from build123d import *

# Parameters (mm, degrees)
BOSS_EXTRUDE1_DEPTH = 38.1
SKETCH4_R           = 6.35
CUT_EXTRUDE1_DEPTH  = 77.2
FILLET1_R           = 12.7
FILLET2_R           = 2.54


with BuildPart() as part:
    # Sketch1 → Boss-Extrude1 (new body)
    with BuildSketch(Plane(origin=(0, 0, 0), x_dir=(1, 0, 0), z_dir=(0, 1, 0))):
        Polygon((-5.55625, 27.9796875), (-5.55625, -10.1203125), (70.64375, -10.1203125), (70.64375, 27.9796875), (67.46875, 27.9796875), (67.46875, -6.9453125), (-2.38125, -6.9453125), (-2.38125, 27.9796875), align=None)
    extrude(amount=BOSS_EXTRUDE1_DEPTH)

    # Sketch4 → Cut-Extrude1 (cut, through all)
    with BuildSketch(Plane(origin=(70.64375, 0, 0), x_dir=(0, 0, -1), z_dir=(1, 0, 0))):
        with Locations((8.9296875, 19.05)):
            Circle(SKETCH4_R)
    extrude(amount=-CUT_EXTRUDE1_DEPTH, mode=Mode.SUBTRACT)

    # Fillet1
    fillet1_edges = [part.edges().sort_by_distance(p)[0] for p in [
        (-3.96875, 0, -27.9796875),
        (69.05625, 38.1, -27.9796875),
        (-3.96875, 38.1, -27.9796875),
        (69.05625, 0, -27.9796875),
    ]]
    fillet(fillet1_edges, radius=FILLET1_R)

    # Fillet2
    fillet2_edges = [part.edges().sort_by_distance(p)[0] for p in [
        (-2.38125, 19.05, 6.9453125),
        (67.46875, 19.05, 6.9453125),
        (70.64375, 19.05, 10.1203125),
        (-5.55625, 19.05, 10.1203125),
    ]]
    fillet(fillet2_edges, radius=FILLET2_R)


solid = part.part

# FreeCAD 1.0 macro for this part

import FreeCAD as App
import Part
import Sketcher

V = App.Vector
Q = App.Units.Quantity


def edges_at(feature, points):
    """Names of the edges that pass closest to the given points."""
    edges = feature.Shape.Edges
    near = lambda p: min(range(len(edges)), key=lambda i: edges[i].distToShape(Part.Vertex(*p))[0])
    return sorted({f"Edge{near(p) + 1}" for p in points})


def add_polygon(sketch, points):
    """Adds a closed chain of lines whose ends are joined by coincident constraints."""
    first, n = sketch.GeometryCount, len(points)
    for a, b in zip(points, points[1:] + points[:1]):
        sketch.addGeometry(Part.LineSegment(App.Vector(*a, 0), App.Vector(*b, 0)), False)
    for i in range(n):
        sketch.addConstraint(Sketcher.Constraint("Coincident", first + i, 2, first + (i + 1) % n, 1))

doc = App.newDocument("Part")
params = doc.addObject("Spreadsheet::Sheet", "Params")
for row, (alias, value) in enumerate([
    ("sketch1_width", "3 in"),
    ("sketch1_height", "1.5 in"),
    ("sketch1_width2", "2.75 in"),
    ("sketch1_height2", "1.375 in"),
    ("pad1_length", "1.5 in"),
    ("sketch2_diameter", "0.5 in"),
    ("fillet_radius", "0.5 in"),
    ("fillet2_radius", "0.1 in"),
], start=1):
    params.set(f"A{row}", alias)
    params.set(f"B{row}", "=" + value)
    params.setAlias(f"B{row}", alias)

body = doc.addObject("PartDesign::Body", "Body")

sketch1 = body.newObject("Sketcher::SketchObject", "Sketch")
sketch1.AttachmentSupport = (doc.getObject("XZ_Plane"), [""])
sketch1.MapMode = "FlatFace"
add_polygon(sketch1, [(-5.6, -28), (-5.6, 10.1), (70.6, 10.1), (70.6, -28), (67.5, -28), (67.5, 6.9), (-2.4, 6.9), (-2.4, -28)])
sketch1.addConstraint(Sketcher.Constraint("Vertical", 0))
sketch1.addConstraint(Sketcher.Constraint("Horizontal", 1))
sketch1.addConstraint(Sketcher.Constraint("Vertical", 2))
sketch1.addConstraint(Sketcher.Constraint("Horizontal", 3))
sketch1.addConstraint(Sketcher.Constraint("Vertical", 4))
sketch1.addConstraint(Sketcher.Constraint("Horizontal", 5))
sketch1.addConstraint(Sketcher.Constraint("Vertical", 6))
sketch1.addConstraint(Sketcher.Constraint("Horizontal", 7))
sketch1.addConstraint(Sketcher.Constraint("Horizontal", 3, 2, 6, 2))
sketch1.addConstraint(Sketcher.Constraint("Equal", 3, 7))
sketch1.addConstraint(Sketcher.Constraint("DistanceX", 1, 1, 1, 2, Q("3 in")))
sketch1.addConstraint(Sketcher.Constraint("DistanceY", 0, 1, 0, 2, Q("1.5 in")))
sketch1.addConstraint(Sketcher.Constraint("DistanceX", 5, 2, 5, 1, Q("2.75 in")))
sketch1.addConstraint(Sketcher.Constraint("DistanceY", 4, 1, 4, 2, Q("1.375 in")))
sketch1.addConstraint(Sketcher.Constraint("DistanceX", 0, 2, -1, 1, Q("0.21875 in")))
sketch1.addConstraint(Sketcher.Constraint("DistanceY", -1, 1, 0, 2, 10.120313))
sketch1.setExpression("Constraints[18]", "Params.sketch1_width")
sketch1.setExpression("Constraints[19]", "Params.sketch1_height")
sketch1.setExpression("Constraints[20]", "Params.sketch1_width2")
sketch1.setExpression("Constraints[21]", "Params.sketch1_height2")
pad1 = body.newObject("PartDesign::Pad", "Pad")
pad1.Profile = sketch1
pad1.setExpression("Length", "Params.pad1_length")
pad1.Reversed = True

sketch2 = body.newObject("Sketcher::SketchObject", "Sketch001")
sketch2.AttachmentSupport = (doc.getObject("YZ_Plane"), [""])
sketch2.MapMode = "FlatFace"
sketch2.AttachmentOffset = App.Placement(V(0, 0, 2.78125 * 25.4), App.Rotation())
sketch2.addGeometry(Part.Circle(V(19, -9, 0), V(0, 0, 1), 6), False)
sketch2.addConstraint(Sketcher.Constraint("Diameter", 0, Q("0.5 in")))
sketch2.addConstraint(Sketcher.Constraint("DistanceX", -1, 1, 0, 3, Q("0.75 in")))
sketch2.addConstraint(Sketcher.Constraint("DistanceY", 0, 3, -1, 1, 8.929688))
sketch2.setExpression("Constraints[0]", "Params.sketch2_diameter")
pocket1 = body.newObject("PartDesign::Pocket", "Pocket")
pocket1.Profile = sketch2
pocket1.Type = "ThroughAll"
doc.recompute()

fillet = body.newObject("PartDesign::Fillet", "Fillet")
fillet.Base = (pocket1, edges_at(pocket1, [
    (-3.969, 0, -27.98),
    (69.056, 38.1, -27.98),
    (-3.969, 38.1, -27.98),
    (69.056, 0, -27.98),
]))
fillet.setExpression("Radius", "Params.fillet_radius")
doc.recompute()

fillet2 = body.newObject("PartDesign::Fillet", "Fillet001")
fillet2.Base = (fillet, edges_at(fillet, [
    (-2.381, 19.05, 6.945),
    (67.469, 19.05, 6.945),
    (70.644, 19.05, 10.12),
    (-5.556, 19.05, 10.12),
]))
fillet2.setExpression("Radius", "Params.fillet2_radius")

doc.recompute()
